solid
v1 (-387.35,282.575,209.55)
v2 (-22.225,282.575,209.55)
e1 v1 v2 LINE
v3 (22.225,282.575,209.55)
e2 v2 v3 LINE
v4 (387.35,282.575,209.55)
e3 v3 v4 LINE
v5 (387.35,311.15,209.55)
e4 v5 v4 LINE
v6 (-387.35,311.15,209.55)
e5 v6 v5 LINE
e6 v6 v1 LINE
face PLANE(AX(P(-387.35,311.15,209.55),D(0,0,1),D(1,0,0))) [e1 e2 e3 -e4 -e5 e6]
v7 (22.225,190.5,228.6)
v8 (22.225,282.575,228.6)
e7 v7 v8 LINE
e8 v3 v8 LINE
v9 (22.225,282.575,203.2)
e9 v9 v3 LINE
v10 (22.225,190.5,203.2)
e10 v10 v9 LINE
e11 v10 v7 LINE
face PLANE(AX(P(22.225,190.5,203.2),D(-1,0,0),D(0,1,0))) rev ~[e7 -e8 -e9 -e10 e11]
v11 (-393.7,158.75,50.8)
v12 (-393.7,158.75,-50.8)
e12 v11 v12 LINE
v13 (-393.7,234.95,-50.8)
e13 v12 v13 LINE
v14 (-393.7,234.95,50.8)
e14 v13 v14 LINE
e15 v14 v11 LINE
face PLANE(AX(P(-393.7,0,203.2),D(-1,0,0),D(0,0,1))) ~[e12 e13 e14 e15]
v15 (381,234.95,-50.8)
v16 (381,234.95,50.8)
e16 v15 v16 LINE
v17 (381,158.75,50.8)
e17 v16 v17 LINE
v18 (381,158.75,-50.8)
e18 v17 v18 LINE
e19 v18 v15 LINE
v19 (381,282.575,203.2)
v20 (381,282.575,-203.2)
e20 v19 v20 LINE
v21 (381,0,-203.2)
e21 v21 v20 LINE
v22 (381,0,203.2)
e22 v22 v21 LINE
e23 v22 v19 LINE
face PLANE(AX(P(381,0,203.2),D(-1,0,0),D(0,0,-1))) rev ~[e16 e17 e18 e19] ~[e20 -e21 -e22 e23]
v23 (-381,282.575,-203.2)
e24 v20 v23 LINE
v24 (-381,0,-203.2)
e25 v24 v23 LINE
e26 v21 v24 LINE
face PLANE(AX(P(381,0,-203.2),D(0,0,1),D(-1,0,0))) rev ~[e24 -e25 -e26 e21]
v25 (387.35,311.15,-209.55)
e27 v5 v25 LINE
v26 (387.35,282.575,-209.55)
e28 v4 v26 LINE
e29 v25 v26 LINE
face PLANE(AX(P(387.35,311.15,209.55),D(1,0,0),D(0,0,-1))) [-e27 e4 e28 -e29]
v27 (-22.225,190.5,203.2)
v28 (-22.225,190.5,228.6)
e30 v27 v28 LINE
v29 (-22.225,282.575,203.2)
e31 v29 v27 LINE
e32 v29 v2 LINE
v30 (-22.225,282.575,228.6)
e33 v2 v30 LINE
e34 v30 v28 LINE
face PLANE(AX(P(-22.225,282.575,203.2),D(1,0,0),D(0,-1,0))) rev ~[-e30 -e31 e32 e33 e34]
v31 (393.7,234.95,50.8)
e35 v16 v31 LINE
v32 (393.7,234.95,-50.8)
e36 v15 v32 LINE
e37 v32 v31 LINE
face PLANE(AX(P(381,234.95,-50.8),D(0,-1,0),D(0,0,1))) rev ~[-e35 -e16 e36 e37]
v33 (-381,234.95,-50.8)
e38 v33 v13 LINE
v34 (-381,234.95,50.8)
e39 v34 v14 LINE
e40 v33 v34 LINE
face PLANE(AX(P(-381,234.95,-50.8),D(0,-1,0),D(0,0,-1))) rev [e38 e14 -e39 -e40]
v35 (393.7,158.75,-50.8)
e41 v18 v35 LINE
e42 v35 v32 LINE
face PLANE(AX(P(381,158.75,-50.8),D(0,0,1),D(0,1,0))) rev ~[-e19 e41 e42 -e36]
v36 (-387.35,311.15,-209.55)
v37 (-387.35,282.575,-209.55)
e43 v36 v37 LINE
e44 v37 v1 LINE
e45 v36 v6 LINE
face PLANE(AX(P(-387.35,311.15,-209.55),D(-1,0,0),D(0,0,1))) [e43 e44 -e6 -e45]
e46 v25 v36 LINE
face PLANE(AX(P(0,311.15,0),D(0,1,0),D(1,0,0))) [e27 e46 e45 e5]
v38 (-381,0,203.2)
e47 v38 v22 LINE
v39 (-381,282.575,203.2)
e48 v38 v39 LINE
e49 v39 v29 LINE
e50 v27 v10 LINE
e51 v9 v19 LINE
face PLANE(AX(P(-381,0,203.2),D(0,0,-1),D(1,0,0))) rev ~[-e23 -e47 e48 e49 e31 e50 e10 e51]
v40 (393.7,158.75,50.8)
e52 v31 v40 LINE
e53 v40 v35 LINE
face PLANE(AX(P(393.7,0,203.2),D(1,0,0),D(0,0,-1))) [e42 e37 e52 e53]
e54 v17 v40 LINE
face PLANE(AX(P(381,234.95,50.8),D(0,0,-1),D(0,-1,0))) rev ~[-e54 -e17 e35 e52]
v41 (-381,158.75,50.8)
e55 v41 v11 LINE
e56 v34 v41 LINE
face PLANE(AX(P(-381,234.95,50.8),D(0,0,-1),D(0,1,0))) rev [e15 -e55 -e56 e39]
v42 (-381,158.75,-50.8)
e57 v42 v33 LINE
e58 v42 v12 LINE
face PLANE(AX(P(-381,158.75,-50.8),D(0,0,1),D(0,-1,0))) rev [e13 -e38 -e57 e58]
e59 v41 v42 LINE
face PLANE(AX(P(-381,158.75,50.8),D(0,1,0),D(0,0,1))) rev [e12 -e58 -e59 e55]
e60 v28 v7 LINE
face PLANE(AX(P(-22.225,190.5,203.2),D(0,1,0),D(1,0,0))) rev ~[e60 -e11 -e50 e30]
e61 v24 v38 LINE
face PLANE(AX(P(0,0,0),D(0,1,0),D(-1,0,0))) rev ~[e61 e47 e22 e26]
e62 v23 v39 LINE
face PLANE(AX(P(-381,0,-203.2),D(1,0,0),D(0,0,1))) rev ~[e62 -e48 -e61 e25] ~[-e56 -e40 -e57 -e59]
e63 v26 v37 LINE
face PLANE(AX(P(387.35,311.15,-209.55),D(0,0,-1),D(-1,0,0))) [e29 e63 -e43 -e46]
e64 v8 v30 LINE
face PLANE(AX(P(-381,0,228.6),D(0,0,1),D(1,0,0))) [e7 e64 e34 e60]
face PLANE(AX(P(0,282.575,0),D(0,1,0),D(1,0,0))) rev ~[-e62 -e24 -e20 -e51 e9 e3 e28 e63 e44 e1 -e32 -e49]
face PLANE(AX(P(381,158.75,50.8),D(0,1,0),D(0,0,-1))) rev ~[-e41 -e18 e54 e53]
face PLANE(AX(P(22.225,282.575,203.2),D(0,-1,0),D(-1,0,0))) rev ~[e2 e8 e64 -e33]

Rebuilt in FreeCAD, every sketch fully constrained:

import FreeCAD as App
import Part
import Sketcher

V = App.Vector
Q = App.Units.Quantity

doc = App.newDocument("Part")
body = doc.addObject("PartDesign::Body", "Body")

# Sketch on XZ plane
sketch1 = doc.addObject("Sketcher::SketchObject", "Sketch")
body.addObject(sketch1)
sketch1.AttachmentSupport = (doc.XZ_Plane, [""])
sketch1.MapMode = "FlatFace"
sketch1.addGeometry([
    Part.LineSegment(V(-381, -203.2, 0), V(-381, 203.2, 0)),
    Part.LineSegment(V(-381, 203.2, 0), V(381, 203.2, 0)),
    Part.LineSegment(V(381, 203.2, 0), V(381, -203.2, 0)),
    Part.LineSegment(V(381, -203.2, 0), V(-381, -203.2, 0)),
], False)
sketch1.addConstraint([
    Sketcher.Constraint("Coincident", 0, 2, 1, 1),
    Sketcher.Constraint("Coincident", 1, 2, 2, 1),
    Sketcher.Constraint("Coincident", 2, 2, 3, 1),
    Sketcher.Constraint("Coincident", 3, 2, 0, 1),
    Sketcher.Constraint("Vertical", 0),
    Sketcher.Constraint("Horizontal", 1),
    Sketcher.Constraint("Vertical", 2),
    Sketcher.Constraint("Horizontal", 3),
    Sketcher.Constraint("Symmetric", 0, 2, 2, 2, -1, 1),
    Sketcher.Constraint("DistanceX", 1, 1, 1, 2, Q("30 in")),
    Sketcher.Constraint("DistanceY", 0, 1, 0, 2, Q("16 in")),
])
pad1 = doc.addObject("PartDesign::Pad", "Pad")
body.addObject(pad1)
pad1.Profile = sketch1
pad1.Length = Q("12.25 in")
pad1.Reversed = True

# Sketch on XZ plane
sketch2 = doc.addObject("Sketcher::SketchObject", "Sketch001")
body.addObject(sketch2)
sketch2.AttachmentSupport = (doc.XZ_Plane, [""])
sketch2.MapMode = "FlatFace"
sketch2.AttachmentOffset = App.Placement(V(0, 0, -12.25 * 25.4), App.Rotation())
sketch2.addGeometry([
    Part.LineSegment(V(-387.35, -209.55, 0), V(-387.35, 209.55, 0)),
    Part.LineSegment(V(-387.35, 209.55, 0), V(387.35, 209.55, 0)),
    Part.LineSegment(V(387.35, 209.55, 0), V(387.35, -209.55, 0)),
    Part.LineSegment(V(387.35, -209.55, 0), V(-387.35, -209.55, 0)),
], False)
sketch2.addConstraint([
    Sketcher.Constraint("Coincident", 0, 2, 1, 1),
    Sketcher.Constraint("Coincident", 1, 2, 2, 1),
    Sketcher.Constraint("Coincident", 2, 2, 3, 1),
    Sketcher.Constraint("Coincident", 3, 2, 0, 1),
    Sketcher.Constraint("Vertical", 0),
    Sketcher.Constraint("Horizontal", 1),
    Sketcher.Constraint("Vertical", 2),
    Sketcher.Constraint("Horizontal", 3),
    Sketcher.Constraint("Symmetric", 0, 2, 2, 2, -1, 1),
    Sketcher.Constraint("DistanceX", 1, 1, 1, 2, Q("30.5 in")),
    Sketcher.Constraint("DistanceY", 0, 1, 0, 2, Q("16.5 in")),
])
pad2 = doc.addObject("PartDesign::Pad", "Pad001")
body.addObject(pad2)
pad2.Profile = sketch2
pad2.Length = Q("1.125 in")

# Sketch on XY plane
sketch3 = doc.addObject("Sketcher::SketchObject", "Sketch002")
body.addObject(sketch3)
sketch3.AttachmentSupport = (doc.XY_Plane, [""])
sketch3.MapMode = "FlatFace"
sketch3.AttachmentOffset = App.Placement(V(0, 0, 8 * 25.4), App.Rotation())
sketch3.addGeometry([
    Part.LineSegment(V(-22.225, 282.575, 0), V(-22.225, 190.5, 0)),
    Part.LineSegment(V(-22.225, 190.5, 0), V(22.225, 190.5, 0)),
    Part.LineSegment(V(22.225, 190.5, 0), V(22.225, 282.575, 0)),
    Part.LineSegment(V(22.225, 282.575, 0), V(-22.225, 282.575, 0)),
], False)
sketch3.addConstraint([
    Sketcher.Constraint("Coincident", 0, 2, 1, 1),
    Sketcher.Constraint("Coincident", 1, 2, 2, 1),
    Sketcher.Constraint("Coincident", 2, 2, 3, 1),
    Sketcher.Constraint("Coincident", 3, 2, 0, 1),
    Sketcher.Constraint("Vertical", 0),
    Sketcher.Constraint("Horizontal", 1),
    Sketcher.Constraint("Vertical", 2),
    Sketcher.Constraint("Horizontal", 3),
    Sketcher.Constraint("DistanceX", 1, 1, 1, 2, Q("1.75 in")),
    Sketcher.Constraint("DistanceY", -1, 1, 0, 2, Q("7.5 in")),
    Sketcher.Constraint("DistanceY", 0, 2, 0, 1, Q("3.625 in")),
    Sketcher.Constraint("DistanceX", 0, 2, -1, 1, Q("0.875 in")),
])
pad3 = doc.addObject("PartDesign::Pad", "Pad002")
body.addObject(pad3)
pad3.Profile = sketch3
pad3.Length = Q("1 in")

# Sketch on YZ plane
sketch4 = doc.addObject("Sketcher::SketchObject", "Sketch003")
body.addObject(sketch4)
sketch4.AttachmentSupport = (doc.YZ_Plane, [""])
sketch4.MapMode = "FlatFace"
sketch4.AttachmentOffset = App.Placement(V(0, 0, 15 * 25.4), App.Rotation())
sketch4.addGeometry([
    Part.LineSegment(V(234.95, 50.8, 0), V(158.75, 50.8, 0)),
    Part.LineSegment(V(158.75, 50.8, 0), V(158.75, -50.8, 0)),
    Part.LineSegment(V(158.75, -50.8, 0), V(234.95, -50.8, 0)),
    Part.LineSegment(V(234.95, -50.8, 0), V(234.95, 50.8, 0)),
], False)
sketch4.addConstraint([
    Sketcher.Constraint("Coincident", 0, 2, 1, 1),
    Sketcher.Constraint("Coincident", 1, 2, 2, 1),
    Sketcher.Constraint("Coincident", 2, 2, 3, 1),
    Sketcher.Constraint("Coincident", 3, 2, 0, 1),
    Sketcher.Constraint("Horizontal", 0),
    Sketcher.Constraint("Vertical", 1),
    Sketcher.Constraint("Horizontal", 2),
    Sketcher.Constraint("Vertical", 3),
    Sketcher.Constraint("DistanceX", 0, 2, 0, 1, Q("3 in")),
    Sketcher.Constraint("DistanceY", 1, 2, 1, 1, Q("4 in")),
    Sketcher.Constraint("DistanceX", -1, 1, 0, 2, Q("6.25 in")),
    Sketcher.Constraint("DistanceY", -1, 1, 0, 2, Q("2 in")),
])
pad4 = doc.addObject("PartDesign::Pad", "Pad003")
body.addObject(pad4)
pad4.Profile = sketch4
pad4.Length = Q("0.5 in")
doc.recompute()

mirrored = doc.addObject("PartDesign::Mirrored", "Mirrored")
body.addObject(mirrored)
mirrored.Originals = [pad4]
mirrored.MirrorPlane = (doc.YZ_Plane, [""])
body.Tip = mirrored

doc.recompute()
